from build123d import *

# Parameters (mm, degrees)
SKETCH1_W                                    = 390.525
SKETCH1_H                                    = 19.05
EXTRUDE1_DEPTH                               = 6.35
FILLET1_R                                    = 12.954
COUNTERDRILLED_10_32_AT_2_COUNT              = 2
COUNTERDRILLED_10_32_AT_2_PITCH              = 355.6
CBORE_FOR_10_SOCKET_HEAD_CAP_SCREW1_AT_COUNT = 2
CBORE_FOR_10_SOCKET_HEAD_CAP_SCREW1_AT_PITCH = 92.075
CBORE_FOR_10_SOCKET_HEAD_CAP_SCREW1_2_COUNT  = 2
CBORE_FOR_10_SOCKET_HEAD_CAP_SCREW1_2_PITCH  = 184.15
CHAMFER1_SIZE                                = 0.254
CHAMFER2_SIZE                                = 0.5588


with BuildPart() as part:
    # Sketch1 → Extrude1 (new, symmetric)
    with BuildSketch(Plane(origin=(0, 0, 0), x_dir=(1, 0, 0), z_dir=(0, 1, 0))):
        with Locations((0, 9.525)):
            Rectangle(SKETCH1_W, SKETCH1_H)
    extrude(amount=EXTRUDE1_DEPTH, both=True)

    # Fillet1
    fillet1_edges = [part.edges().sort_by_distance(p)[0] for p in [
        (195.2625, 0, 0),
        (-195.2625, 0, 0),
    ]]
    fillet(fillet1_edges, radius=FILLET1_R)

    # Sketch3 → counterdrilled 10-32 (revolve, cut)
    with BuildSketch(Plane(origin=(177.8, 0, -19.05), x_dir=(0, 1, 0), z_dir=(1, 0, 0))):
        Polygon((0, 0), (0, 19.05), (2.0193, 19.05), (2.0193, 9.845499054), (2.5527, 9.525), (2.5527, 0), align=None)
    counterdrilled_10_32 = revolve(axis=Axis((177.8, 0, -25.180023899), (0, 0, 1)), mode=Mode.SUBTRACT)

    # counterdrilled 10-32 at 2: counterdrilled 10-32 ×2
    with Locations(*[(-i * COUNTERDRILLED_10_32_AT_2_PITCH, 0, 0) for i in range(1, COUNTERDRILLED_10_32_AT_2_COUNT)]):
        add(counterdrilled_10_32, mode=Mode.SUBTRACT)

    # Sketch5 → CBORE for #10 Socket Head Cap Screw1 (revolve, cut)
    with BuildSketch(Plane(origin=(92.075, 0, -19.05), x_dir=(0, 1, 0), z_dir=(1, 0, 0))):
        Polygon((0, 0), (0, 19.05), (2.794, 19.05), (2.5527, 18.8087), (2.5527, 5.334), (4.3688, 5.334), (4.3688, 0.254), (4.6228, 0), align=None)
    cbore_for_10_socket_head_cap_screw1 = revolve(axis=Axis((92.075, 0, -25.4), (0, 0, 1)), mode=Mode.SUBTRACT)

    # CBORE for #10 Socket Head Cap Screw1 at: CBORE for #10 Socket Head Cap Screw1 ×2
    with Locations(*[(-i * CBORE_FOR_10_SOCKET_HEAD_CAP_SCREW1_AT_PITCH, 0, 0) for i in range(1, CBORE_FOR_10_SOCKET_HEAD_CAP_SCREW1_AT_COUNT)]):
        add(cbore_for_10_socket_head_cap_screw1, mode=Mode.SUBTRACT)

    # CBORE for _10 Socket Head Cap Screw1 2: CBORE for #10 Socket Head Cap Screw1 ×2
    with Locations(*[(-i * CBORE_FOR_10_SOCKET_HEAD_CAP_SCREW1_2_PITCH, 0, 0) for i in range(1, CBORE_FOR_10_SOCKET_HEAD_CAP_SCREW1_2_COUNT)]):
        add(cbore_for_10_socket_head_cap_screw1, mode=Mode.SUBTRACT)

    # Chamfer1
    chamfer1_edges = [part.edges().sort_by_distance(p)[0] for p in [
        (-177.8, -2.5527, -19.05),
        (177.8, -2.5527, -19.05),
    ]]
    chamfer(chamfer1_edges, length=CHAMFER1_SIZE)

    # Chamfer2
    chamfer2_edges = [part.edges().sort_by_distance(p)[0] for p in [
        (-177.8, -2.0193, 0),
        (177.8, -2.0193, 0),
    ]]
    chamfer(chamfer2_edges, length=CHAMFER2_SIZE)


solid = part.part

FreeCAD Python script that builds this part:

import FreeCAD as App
import Part
import Sketcher
Q = App.Units.Quantity


def edges_at(feature, points):
    """Names of the edges that pass closest to the given points."""
    edges = feature.Shape.Edges
    near = lambda p: min(range(len(edges)), key=lambda i: edges[i].distToShape(Part.Vertex(*p))[0])
    return sorted({f"Edge{near(p) + 1}" for p in points})

doc = App.newDocument("Part")
body = doc.addObject("PartDesign::Body", "Body")

# Sketch on XZ plane
sketch1 = doc.addObject("Sketcher::SketchObject", "Sketch")
body.addObject(sketch1)
sketch1.AttachmentSupport = (doc.XZ_Plane, [""])
sketch1.MapMode = "FlatFace"
sketch1.addGeometry([
    Part.LineSegment(App.Vector(-195.2625, -19.05, 0), App.Vector(-195.2625, 0, 0)),
    Part.LineSegment(App.Vector(-195.2625, 0, 0), App.Vector(195.2625, 0, 0)),
    Part.LineSegment(App.Vector(195.2625, 0, 0), App.Vector(195.2625, -19.05, 0)),
    Part.LineSegment(App.Vector(195.2625, -19.05, 0), App.Vector(-195.2625, -19.05, 0)),
], False)
sketch1.addConstraint([
    Sketcher.Constraint("Coincident", 0, 2, 1, 1),
    Sketcher.Constraint("Coincident", 1, 2, 2, 1),
    Sketcher.Constraint("Coincident", 2, 2, 3, 1),
    Sketcher.Constraint("Coincident", 3, 2, 0, 1),
    Sketcher.Constraint("Vertical", 0),
    Sketcher.Constraint("Horizontal", 1),
    Sketcher.Constraint("Vertical", 2),
    Sketcher.Constraint("Horizontal", 3),
    Sketcher.Constraint("Symmetric", 0, 2, 1, 2, -1, 1),
    Sketcher.Constraint("DistanceY", 0, 1, 0, 2, Q("0.75 in")),
    Sketcher.Constraint("DistanceX", 1, 1, 1, 2, Q("15.375 in")),
])
pad1 = doc.addObject("PartDesign::Pad", "Pad")
body.addObject(pad1)
pad1.Profile = sketch1
pad1.Length = Q("0.5 in")
pad1.Midplane = True
doc.recompute()

fillet = doc.addObject("PartDesign::Fillet", "Fillet")
body.addObject(fillet)
fillet.Base = (pad1, edges_at(pad1, [(195.262, 0, 0), (-195.262, 0, 0)]))
fillet.Radius = Q("0.51 in")

# Sketch on YZ plane
sketch2 = doc.addObject("Sketcher::SketchObject", "Sketch001")
body.addObject(sketch2)
sketch2.AttachmentSupport = (doc.YZ_Plane, [""])
sketch2.MapMode = "FlatFace"
sketch2.AttachmentOffset = App.Placement(App.Vector(0, 0, 7 * 25.4), App.Rotation())
sketch2.addGeometry([
    Part.LineSegment(App.Vector(0, 0, 0), App.Vector(0, -19.05, 0)),  # 0
    Part.LineSegment(App.Vector(0, -19.05, 0), App.Vector(2.5527, -19.05, 0)),  # 1
    Part.LineSegment(App.Vector(2.5527, -19.05, 0), App.Vector(2.5527, -9.525, 0)),  # 2
    Part.LineSegment(App.Vector(2.5527, -9.525, 0), App.Vector(2.0193, -9.204501, 0)),  # 3
    Part.LineSegment(App.Vector(2.0193, -9.204501, 0), App.Vector(2.0193, 0, 0)),  # 4
    Part.LineSegment(App.Vector(2.0193, 0, 0), App.Vector(0, 0, 0)),  # 5
], False)
sketch2.addConstraint([
    Sketcher.Constraint("Coincident", 0, 2, 1, 1),
    Sketcher.Constraint("Coincident", 1, 2, 2, 1),
    Sketcher.Constraint("Coincident", 2, 2, 3, 1),
    Sketcher.Constraint("Coincident", 3, 2, 4, 1),
    Sketcher.Constraint("Coincident", 4, 2, 5, 1),
    Sketcher.Constraint("Coincident", 5, 2, 0, 1),
    Sketcher.Constraint("Vertical", 0),
    Sketcher.Constraint("Horizontal", 1),
    Sketcher.Constraint("Vertical", 2),
    Sketcher.Constraint("Vertical", 4),
    Sketcher.Constraint("Horizontal", 5),
    Sketcher.Constraint("Coincident", 5, 2, -1, 1),
    Sketcher.Constraint("Angle", 3, Q("149 deg")),
    Sketcher.Constraint("DistanceY", 0, 2, 0, 1, Q("0.75 in")),
    Sketcher.Constraint("DistanceY", 2, 1, 2, 2, Q("0.375 in")),
    Sketcher.Constraint("DistanceX", 1, 1, 1, 2, Q("0.1005 in")),
    Sketcher.Constraint("DistanceX", 5, 2, 5, 1, Q("0.0795 in")),
])
groove = doc.addObject("PartDesign::Groove", "Groove")
body.addObject(groove)
groove.Profile = sketch2
groove.ReferenceAxis = (sketch2, ["V_Axis"])
groove.Angle = 360
doc.recompute()

linearpattern = doc.addObject("PartDesign::LinearPattern", "LinearPattern")
body.addObject(linearpattern)
linearpattern.Originals = [groove]
linearpattern.Direction = (doc.X_Axis, [""])
linearpattern.Mode = "offset"
linearpattern.Offset = Q("14 in")
linearpattern.Occurrences = 2
linearpattern.Reversed = True
body.Tip = linearpattern

# Sketch on YZ plane
sketch3 = doc.addObject("Sketcher::SketchObject", "Sketch002")
body.addObject(sketch3)
sketch3.AttachmentSupport = (doc.YZ_Plane, [""])
sketch3.MapMode = "FlatFace"
sketch3.AttachmentOffset = App.Placement(App.Vector(0, 0, 3.625 * 25.4), App.Rotation())
sketch3.addGeometry([
    Part.LineSegment(App.Vector(0, 0, 0), App.Vector(0, -19.05, 0)),  # 0
    Part.LineSegment(App.Vector(0, -19.05, 0), App.Vector(4.6228, -19.05, 0)),  # 1
    Part.LineSegment(App.Vector(4.6228, -19.05, 0), App.Vector(4.3688, -18.796, 0)),  # 2
    Part.LineSegment(App.Vector(4.3688, -18.796, 0), App.Vector(4.3688, -13.716, 0)),  # 3
    Part.LineSegment(App.Vector(4.3688, -13.716, 0), App.Vector(2.5527, -13.716, 0)),  # 4
    Part.LineSegment(App.Vector(2.5527, -13.716, 0), App.Vector(2.5527, -0.2413, 0)),  # 5
    Part.LineSegment(App.Vector(2.5527, -0.2413, 0), App.Vector(2.794, 0, 0)),  # 6
    Part.LineSegment(App.Vector(2.794, 0, 0), App.Vector(0, 0, 0)),  # 7
], False)
sketch3.addConstraint([
    Sketcher.Constraint("Coincident", 0, 2, 1, 1),
    Sketcher.Constraint("Coincident", 1, 2, 2, 1),
    Sketcher.Constraint("Coincident", 2, 2, 3, 1),
    Sketcher.Constraint("Coincident", 3, 2, 4, 1),
    Sketcher.Constraint("Coincident", 4, 2, 5, 1),
    Sketcher.Constraint("Coincident", 5, 2, 6, 1),
    Sketcher.Constraint("Coincident", 6, 2, 7, 1),
    Sketcher.Constraint("Coincident", 7, 2, 0, 1),
    Sketcher.Constraint("Vertical", 0),
    Sketcher.Constraint("Horizontal", 1),
    Sketcher.Constraint("Vertical", 3),
    Sketcher.Constraint("Horizontal", 4),
    Sketcher.Constraint("Vertical", 5),
    Sketcher.Constraint("Horizontal", 7),
    Sketcher.Constraint("Coincident", 7, 2, -1, 1),
    Sketcher.Constraint("Perpendicular", 2, 6),
    Sketcher.Constraint("DistanceY", 3, 1, 3, 2, Q("0.2 in")),
    Sketcher.Constraint("Angle", 2, Q("135 deg")),
    Sketcher.Constraint("DistanceX", 7, 2, 7, 1, Q("0.11 in")),
    Sketcher.Constraint("DistanceY", 0, 2, 0, 1, Q("0.75 in")),
    Sketcher.Constraint("DistanceX", 1, 1, 1, 2, Q("0.182 in")),
    Sketcher.Constraint("DistanceY", 2, 2, -1, 1, Q("0.74 in")),
    Sketcher.Constraint("DistanceX", 4, 2, 4, 1, Q("0.0715 in")),
])
groove2 = doc.addObject("PartDesign::Groove", "Groove001")
body.addObject(groove2)
groove2.Profile = sketch3
groove2.ReferenceAxis = (sketch3, ["V_Axis"])
groove2.Angle = 360
doc.recompute()

linearpattern2 = doc.addObject("PartDesign::LinearPattern", "LinearPattern001")
body.addObject(linearpattern2)
linearpattern2.Originals = [groove2]
linearpattern2.Direction = (doc.X_Axis, [""])
linearpattern2.Mode = "offset"
linearpattern2.Offset = Q("3.625 in")
linearpattern2.Occurrences = 2
linearpattern2.Reversed = True
body.Tip = linearpattern2
doc.recompute()

linearpattern3 = doc.addObject("PartDesign::LinearPattern", "LinearPattern002")
body.addObject(linearpattern3)
linearpattern3.Originals = [groove2]
linearpattern3.Direction = (doc.X_Axis, [""])
linearpattern3.Mode = "offset"
linearpattern3.Offset = Q("7.25 in")
linearpattern3.Occurrences = 2
linearpattern3.Reversed = True
body.Tip = linearpattern3
doc.recompute()

chamfer = doc.addObject("PartDesign::Chamfer", "Chamfer")
body.addObject(chamfer)
chamfer.Base = (linearpattern3, edges_at(linearpattern3, [(-177.8, -2.553, -19.05), (177.8, -2.553, -19.05)]))
chamfer.Size = Q("0.01 in")
doc.recompute()

chamfer2 = doc.addObject("PartDesign::Chamfer", "Chamfer001")
body.addObject(chamfer2)
chamfer2.Base = (chamfer, edges_at(chamfer, [(-177.8, -2.019, 0), (177.8, -2.019, 0)]))
chamfer2.Size = Q("0.022 in")

doc.recompute()
